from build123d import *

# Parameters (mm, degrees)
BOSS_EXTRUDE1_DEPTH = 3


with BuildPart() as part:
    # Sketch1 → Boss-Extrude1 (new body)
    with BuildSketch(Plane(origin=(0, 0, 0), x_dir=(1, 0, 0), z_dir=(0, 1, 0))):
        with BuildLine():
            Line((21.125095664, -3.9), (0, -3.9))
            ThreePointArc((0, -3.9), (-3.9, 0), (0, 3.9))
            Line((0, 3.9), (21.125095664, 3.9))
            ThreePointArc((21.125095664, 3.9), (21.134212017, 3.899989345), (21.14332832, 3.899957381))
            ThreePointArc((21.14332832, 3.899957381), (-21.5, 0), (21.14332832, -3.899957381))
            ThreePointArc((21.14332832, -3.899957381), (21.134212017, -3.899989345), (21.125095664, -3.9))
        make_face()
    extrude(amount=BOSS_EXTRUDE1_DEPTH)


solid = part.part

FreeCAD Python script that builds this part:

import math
import FreeCAD as App
import Part
import Sketcher

V = App.Vector

doc = App.newDocument("Part")
body = doc.addObject("PartDesign::Body", "Body")

# Sketch on XZ plane
sketch1 = doc.addObject("Sketcher::SketchObject", "Sketch")
body.addObject(sketch1)
sketch1.AttachmentSupport = (doc.XZ_Plane, [""])
sketch1.MapMode = "FlatFace"
sketch1.addGeometry(Part.LineSegment(V(21.125, 3.9, 0), V(0, 3.9, 0)), False)
sketch1.addGeometry(Part.ArcOfCircle(Part.Circle(V(0, 0, 0), V(0, 0, 1), 3.9), math.radians(90), math.radians(270)), False)
sketch1.addGeometry(Part.LineSegment(V(0, -3.9, 0), V(21.125, -3.9, 0)), False)
sketch1.addGeometry(Part.ArcOfCircle(Part.Circle(V(21.125, 0, 0), V(0, 0, 1), 3.9), math.radians(-90), math.radians(-89.73)), False)
sketch1.addGeometry(Part.ArcOfCircle(Part.Circle(V(0, 0, 0), V(0, 0, 1), 21.5), math.radians(10), math.radians(350)), False)
sketch1.addGeometry(Part.ArcOfCircle(Part.Circle(V(21.125, 0, 0), V(0, 0, 1), 3.9), math.radians(89.73), math.radians(90)), False)
sketch1.addConstraint(Sketcher.Constraint("Tangent", 0, 2, 1, 1))
sketch1.addConstraint(Sketcher.Constraint("Tangent", 1, 2, 2, 1))
sketch1.addConstraint(Sketcher.Constraint("Tangent", 2, 2, 3, 1))
sketch1.addConstraint(Sketcher.Constraint("Coincident", 3, 2, 4, 2))
sketch1.addConstraint(Sketcher.Constraint("Coincident", 4, 1, 5, 1))
sketch1.addConstraint(Sketcher.Constraint("Tangent", 5, 2, 0, 1))
sketch1.addConstraint(Sketcher.Constraint("Horizontal", 0))
sketch1.addConstraint(Sketcher.Constraint("Horizontal", 2))
sketch1.addConstraint(Sketcher.Constraint("Coincident", 1, 3, -1, 1))
sketch1.addConstraint(Sketcher.Constraint("Coincident", 4, 3, -1, 1))
sketch1.addConstraint(Sketcher.Constraint("Equal", 3, 5))
sketch1.addConstraint(Sketcher.Constraint("Vertical", 3, 3, 5, 3))
sketch1.addConstraint(Sketcher.Constraint("Radius", 1, 3.9))
sketch1.addConstraint(Sketcher.Constraint("Radius", 4, 21.5))
sketch1.addConstraint(Sketcher.Constraint("Radius", 3, 3.900126))
sketch1.addConstraint(Sketcher.Constraint("DistanceX", 0, 2, 0, 1, 21.125096))
pad1 = doc.addObject("PartDesign::Pad", "Pad")
body.addObject(pad1)
pad1.Profile = sketch1
pad1.Length = 3
pad1.Reversed = True

doc.recompute()
